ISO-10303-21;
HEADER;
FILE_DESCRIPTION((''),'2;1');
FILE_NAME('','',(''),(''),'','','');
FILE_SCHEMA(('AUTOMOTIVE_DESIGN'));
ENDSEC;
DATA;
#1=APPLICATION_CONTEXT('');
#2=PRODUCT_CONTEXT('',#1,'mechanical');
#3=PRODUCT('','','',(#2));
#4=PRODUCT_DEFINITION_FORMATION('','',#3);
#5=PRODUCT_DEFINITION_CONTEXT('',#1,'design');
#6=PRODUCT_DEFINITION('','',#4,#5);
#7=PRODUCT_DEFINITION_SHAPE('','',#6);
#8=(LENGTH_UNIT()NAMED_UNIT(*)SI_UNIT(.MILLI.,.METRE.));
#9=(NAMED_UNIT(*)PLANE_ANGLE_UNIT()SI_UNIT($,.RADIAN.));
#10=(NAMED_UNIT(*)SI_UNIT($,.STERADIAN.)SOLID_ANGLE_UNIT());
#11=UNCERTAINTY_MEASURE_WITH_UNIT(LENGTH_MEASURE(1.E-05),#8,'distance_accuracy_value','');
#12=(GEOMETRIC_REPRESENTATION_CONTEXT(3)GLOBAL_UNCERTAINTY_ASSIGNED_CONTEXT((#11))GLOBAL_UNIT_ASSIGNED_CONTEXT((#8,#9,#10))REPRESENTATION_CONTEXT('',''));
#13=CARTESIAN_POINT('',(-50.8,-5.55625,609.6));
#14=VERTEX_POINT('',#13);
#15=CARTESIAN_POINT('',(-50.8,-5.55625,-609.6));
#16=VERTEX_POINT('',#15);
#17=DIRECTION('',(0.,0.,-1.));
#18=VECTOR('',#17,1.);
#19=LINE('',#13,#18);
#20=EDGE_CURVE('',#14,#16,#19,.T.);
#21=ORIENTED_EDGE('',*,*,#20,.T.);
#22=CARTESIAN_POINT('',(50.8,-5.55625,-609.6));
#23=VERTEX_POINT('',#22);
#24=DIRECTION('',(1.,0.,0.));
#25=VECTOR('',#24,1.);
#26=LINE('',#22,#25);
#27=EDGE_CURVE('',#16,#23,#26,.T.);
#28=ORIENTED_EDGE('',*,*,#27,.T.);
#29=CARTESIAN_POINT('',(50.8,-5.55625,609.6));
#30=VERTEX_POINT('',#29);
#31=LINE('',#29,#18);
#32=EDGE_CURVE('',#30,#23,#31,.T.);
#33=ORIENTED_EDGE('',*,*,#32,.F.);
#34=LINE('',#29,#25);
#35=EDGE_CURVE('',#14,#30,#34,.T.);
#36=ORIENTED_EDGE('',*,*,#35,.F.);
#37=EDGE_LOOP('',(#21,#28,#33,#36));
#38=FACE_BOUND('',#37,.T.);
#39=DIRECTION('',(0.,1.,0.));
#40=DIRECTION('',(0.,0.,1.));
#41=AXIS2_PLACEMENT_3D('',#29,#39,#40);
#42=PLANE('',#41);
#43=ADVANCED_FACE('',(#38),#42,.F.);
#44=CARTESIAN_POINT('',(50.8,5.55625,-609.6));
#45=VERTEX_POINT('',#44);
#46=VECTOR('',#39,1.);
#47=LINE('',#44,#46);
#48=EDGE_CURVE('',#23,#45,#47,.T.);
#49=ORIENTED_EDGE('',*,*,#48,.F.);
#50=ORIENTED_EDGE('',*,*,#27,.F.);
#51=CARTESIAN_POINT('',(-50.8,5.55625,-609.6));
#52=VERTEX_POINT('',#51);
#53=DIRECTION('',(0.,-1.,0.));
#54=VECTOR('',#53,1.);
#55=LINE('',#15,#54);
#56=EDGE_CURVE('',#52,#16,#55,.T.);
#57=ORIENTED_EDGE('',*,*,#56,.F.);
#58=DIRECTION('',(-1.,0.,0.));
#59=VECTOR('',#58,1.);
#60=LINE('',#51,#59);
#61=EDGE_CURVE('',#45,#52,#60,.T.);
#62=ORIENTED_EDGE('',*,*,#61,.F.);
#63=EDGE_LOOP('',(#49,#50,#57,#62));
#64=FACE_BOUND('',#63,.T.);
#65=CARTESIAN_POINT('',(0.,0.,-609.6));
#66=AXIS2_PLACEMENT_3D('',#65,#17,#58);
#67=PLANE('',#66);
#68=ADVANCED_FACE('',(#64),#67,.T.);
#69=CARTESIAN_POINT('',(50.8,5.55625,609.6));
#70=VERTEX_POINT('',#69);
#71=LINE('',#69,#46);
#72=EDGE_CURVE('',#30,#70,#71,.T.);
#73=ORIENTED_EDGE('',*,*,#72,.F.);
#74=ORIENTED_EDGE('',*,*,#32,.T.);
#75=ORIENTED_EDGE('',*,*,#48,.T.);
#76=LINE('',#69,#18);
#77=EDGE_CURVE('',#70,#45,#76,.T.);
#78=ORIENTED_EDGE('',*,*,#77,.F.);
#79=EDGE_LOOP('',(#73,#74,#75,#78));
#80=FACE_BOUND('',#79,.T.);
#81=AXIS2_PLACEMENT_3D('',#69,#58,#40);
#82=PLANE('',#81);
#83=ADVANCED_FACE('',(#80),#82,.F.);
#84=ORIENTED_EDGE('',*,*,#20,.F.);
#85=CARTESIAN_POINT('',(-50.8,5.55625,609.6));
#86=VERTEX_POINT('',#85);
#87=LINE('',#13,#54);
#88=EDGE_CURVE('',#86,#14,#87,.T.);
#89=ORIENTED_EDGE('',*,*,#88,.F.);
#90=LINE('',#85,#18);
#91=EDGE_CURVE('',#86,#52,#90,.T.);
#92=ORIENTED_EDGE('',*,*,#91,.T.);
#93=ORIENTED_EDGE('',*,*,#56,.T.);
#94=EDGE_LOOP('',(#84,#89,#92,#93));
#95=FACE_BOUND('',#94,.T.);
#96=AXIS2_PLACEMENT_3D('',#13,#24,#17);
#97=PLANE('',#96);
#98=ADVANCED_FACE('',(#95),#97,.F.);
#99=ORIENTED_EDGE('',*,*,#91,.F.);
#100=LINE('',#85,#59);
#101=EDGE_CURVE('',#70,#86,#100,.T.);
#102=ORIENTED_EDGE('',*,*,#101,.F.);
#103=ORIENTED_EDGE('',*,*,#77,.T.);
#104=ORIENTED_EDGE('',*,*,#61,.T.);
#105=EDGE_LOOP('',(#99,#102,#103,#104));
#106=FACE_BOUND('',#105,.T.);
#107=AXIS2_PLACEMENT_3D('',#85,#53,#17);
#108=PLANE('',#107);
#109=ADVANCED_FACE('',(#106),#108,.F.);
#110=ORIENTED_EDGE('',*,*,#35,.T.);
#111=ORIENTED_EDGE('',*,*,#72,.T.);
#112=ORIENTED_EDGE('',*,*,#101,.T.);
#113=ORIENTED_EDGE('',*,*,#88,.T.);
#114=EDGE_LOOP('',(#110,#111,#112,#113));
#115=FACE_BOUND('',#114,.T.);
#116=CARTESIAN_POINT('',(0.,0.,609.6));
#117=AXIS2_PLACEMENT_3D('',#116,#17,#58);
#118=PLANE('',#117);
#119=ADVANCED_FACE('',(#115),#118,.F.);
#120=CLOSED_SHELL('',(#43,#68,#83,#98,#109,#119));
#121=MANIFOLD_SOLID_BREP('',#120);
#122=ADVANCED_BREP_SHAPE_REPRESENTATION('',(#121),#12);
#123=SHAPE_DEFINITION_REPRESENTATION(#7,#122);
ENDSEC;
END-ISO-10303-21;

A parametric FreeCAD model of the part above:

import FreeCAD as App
import Part
import Sketcher

V = App.Vector
Q = App.Units.Quantity

doc = App.newDocument("Part")
body = doc.addObject("PartDesign::Body", "Body")

# Sketch on XY plane
sketch1 = doc.addObject("Sketcher::SketchObject", "Sketch")
body.addObject(sketch1)
sketch1.AttachmentSupport = (doc.XY_Plane, [""])
sketch1.MapMode = "FlatFace"
sketch1.addGeometry([
    Part.LineSegment(V(-51, 6, 0), V(-51, -6, 0)),
    Part.LineSegment(V(-51, -6, 0), V(51, -6, 0)),
    Part.LineSegment(V(51, -6, 0), V(51, 6, 0)),
    Part.LineSegment(V(51, 6, 0), V(-51, 6, 0)),
], False)
sketch1.addConstraint([
    Sketcher.Constraint("Coincident", 0, 2, 1, 1),
    Sketcher.Constraint("Coincident", 1, 2, 2, 1),
    Sketcher.Constraint("Coincident", 2, 2, 3, 1),
    Sketcher.Constraint("Coincident", 3, 2, 0, 1),
    Sketcher.Constraint("Vertical", 0),
    Sketcher.Constraint("Horizontal", 1),
    Sketcher.Constraint("Vertical", 2),
    Sketcher.Constraint("Horizontal", 3),
    Sketcher.Constraint("Symmetric", 0, 2, 2, 2, -1, 1),
    Sketcher.Constraint("DistanceX", 1, 1, 1, 2, Q("4 in")),
    Sketcher.Constraint("DistanceY", 0, 2, 0, 1, Q("0.4375 in")),
])
pad1 = doc.addObject("PartDesign::Pad", "Pad")
body.addObject(pad1)
pad1.Profile = sketch1
pad1.Length = Q("48 in")
pad1.Midplane = True

doc.recompute()
